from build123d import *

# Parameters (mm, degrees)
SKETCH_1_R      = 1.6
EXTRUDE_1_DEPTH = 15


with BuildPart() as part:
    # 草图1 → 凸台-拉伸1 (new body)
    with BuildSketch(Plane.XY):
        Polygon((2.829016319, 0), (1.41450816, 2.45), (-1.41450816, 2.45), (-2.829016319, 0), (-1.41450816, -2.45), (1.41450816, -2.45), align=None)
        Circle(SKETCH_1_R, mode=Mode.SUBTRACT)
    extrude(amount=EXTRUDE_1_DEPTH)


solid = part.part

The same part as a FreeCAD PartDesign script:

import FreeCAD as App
import Part
import Sketcher
Q = App.Units.Quantity


def add_polygon(sketch, points):
    """Adds a closed chain of lines whose ends are joined by coincident constraints."""
    first, n = sketch.GeometryCount, len(points)
    for a, b in zip(points, points[1:] + points[:1]):
        sketch.addGeometry(Part.LineSegment(App.Vector(*a, 0), App.Vector(*b, 0)), False)
    for i in range(n):
        sketch.addConstraint(Sketcher.Constraint("Coincident", first + i, 2, first + (i + 1) % n, 1))

doc = App.newDocument("Part")
params = doc.addObject("Spreadsheet::Sheet", "Params")
for row, (alias, value) in enumerate([
    ("sketch1_diameter", "3.2 mm"),
    ("pad1_length", "15 mm"),
], start=1):
    params.set(f"A{row}", alias)
    params.set(f"B{row}", "=" + value)
    params.setAlias(f"B{row}", alias)

body = doc.addObject("PartDesign::Body", "Body")

# Sketch on XY plane
sketch1 = body.newObject("Sketcher::SketchObject", "Sketch")
sketch1.AttachmentSupport = (doc.getObject("XY_Plane"), [""])
sketch1.MapMode = "FlatFace"
add_polygon(sketch1, [(2.8, 0), (1.4, 2.5), (-1.4, 2.5), (-2.8, 0), (-1.4, -2.5), (1.4, -2.5)])  # lines 0-5
sketch1.addGeometry(Part.Circle(App.Vector(0, 0, 0), App.Vector(0, 0, 1), 1.6), False)  # 6
sketch1.addConstraint([
    Sketcher.Constraint("Horizontal", 1),
    Sketcher.Constraint("Horizontal", 4),
    Sketcher.Constraint("Coincident", 6, 3, -1, 1),
    Sketcher.Constraint("Symmetric", 0, 2, 3, 2, -1, 1),
    Sketcher.Constraint("Symmetric", 2, 2, 5, 2, -1, 1),
    Sketcher.Constraint("PointOnObject", 2, 2, -1),
    Sketcher.Constraint("Parallel", 2, 5),
    Sketcher.Constraint("Vertical", 1, 2, 3, 2),
    Sketcher.Constraint("Diameter", 6, Q("3.2 mm")),
    Sketcher.Constraint("Angle", 0, Q("120 deg")),
    Sketcher.Constraint("DistanceY", 3, 2, 1, 2, Q("4.9 mm")),
    Sketcher.Constraint("DistanceX", 1, 2, 1, 1, Q("2.829016 mm")),
])
sketch1.setExpression("Constraints[14]", "Params.sketch1_diameter")
pad1 = body.newObject("PartDesign::Pad", "Pad")
pad1.Profile = sketch1
pad1.setExpression("Length", "Params.pad1_length")

doc.recompute()
